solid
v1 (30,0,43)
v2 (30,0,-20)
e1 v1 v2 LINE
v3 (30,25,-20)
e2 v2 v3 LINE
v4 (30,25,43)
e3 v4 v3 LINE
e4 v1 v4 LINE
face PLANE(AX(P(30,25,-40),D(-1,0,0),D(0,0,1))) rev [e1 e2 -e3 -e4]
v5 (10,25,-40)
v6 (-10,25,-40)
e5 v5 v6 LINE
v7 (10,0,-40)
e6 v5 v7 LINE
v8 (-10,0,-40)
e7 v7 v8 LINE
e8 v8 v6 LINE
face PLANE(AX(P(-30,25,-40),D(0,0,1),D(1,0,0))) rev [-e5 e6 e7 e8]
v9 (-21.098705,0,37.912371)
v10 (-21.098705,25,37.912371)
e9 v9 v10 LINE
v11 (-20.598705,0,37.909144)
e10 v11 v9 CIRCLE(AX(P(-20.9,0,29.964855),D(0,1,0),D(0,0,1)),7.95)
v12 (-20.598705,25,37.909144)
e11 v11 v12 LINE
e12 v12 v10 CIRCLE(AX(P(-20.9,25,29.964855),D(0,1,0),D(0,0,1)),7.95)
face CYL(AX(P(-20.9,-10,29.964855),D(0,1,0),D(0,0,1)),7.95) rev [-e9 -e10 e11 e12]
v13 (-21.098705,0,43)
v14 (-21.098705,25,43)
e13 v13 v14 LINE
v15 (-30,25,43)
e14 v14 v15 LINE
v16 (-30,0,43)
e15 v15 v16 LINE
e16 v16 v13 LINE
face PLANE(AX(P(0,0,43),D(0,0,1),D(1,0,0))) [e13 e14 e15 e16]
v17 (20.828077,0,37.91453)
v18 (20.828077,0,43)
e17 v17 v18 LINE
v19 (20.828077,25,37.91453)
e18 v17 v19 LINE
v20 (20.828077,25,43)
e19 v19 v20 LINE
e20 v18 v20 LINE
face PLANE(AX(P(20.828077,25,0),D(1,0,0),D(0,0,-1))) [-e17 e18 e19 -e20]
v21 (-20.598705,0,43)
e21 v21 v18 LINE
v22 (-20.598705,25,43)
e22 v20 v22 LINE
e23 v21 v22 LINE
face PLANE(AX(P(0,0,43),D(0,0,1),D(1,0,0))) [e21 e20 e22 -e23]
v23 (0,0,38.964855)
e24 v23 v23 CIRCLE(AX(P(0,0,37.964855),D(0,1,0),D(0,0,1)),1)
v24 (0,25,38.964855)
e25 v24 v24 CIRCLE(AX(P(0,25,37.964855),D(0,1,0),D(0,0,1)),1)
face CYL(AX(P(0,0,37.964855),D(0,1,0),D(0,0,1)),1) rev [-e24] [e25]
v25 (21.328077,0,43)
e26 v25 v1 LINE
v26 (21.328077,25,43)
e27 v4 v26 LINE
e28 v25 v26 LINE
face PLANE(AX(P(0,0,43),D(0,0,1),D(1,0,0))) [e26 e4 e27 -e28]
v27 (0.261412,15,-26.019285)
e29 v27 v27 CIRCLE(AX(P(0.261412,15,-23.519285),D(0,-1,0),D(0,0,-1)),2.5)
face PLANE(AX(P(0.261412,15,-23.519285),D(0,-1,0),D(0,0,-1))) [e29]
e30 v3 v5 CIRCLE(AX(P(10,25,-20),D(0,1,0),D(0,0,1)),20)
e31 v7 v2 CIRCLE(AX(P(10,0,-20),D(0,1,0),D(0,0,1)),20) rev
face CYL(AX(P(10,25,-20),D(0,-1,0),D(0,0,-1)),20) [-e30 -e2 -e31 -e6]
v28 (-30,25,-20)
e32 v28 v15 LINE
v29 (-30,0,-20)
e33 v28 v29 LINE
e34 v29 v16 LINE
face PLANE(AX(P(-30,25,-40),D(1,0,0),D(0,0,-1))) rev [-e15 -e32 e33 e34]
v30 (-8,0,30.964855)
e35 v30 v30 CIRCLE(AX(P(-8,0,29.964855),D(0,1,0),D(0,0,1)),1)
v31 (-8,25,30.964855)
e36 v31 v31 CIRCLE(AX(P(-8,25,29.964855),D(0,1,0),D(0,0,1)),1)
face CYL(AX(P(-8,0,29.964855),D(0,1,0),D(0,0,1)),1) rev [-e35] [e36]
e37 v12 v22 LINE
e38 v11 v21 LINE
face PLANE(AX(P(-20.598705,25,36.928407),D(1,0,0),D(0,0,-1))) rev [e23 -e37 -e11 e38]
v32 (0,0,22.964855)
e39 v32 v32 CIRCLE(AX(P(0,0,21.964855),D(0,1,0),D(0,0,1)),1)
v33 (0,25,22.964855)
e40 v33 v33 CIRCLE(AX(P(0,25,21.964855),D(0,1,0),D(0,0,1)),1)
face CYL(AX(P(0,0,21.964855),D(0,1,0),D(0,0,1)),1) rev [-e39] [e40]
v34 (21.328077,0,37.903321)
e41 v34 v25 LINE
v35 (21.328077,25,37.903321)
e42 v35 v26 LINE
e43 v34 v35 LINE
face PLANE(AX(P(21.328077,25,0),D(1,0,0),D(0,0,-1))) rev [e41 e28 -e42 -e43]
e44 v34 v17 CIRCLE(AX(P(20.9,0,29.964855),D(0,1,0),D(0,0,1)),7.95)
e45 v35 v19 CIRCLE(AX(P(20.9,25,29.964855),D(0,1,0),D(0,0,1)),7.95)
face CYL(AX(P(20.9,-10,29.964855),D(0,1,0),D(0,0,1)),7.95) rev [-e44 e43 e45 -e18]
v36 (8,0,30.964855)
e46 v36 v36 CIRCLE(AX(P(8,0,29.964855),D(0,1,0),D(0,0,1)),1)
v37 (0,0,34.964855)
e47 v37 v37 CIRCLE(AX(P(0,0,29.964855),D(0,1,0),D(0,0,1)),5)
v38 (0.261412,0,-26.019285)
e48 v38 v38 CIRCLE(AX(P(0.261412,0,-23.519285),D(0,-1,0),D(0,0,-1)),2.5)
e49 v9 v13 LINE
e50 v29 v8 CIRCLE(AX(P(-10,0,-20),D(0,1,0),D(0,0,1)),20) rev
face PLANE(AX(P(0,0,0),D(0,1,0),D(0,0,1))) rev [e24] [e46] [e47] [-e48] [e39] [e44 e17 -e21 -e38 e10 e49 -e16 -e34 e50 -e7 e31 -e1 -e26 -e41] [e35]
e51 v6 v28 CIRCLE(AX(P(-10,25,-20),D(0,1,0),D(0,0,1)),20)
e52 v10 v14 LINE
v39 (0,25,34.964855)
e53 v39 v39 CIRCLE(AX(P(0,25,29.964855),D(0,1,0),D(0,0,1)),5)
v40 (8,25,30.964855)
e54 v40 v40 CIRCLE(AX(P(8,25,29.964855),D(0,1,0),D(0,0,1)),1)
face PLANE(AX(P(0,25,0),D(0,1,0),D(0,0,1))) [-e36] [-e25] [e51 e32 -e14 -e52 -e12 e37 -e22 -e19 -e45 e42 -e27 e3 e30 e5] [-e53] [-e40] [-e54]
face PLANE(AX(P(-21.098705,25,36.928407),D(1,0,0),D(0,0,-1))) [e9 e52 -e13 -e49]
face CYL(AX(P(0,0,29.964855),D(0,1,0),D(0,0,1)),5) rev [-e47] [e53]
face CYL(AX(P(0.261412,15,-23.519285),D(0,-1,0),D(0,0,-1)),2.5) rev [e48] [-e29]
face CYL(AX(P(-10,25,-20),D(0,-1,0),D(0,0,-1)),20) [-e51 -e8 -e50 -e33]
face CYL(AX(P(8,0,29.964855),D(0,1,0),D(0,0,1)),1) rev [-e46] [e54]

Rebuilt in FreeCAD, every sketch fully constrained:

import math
import FreeCAD as App
import Part
import Sketcher
from FreeCAD import Vector


def edges_at(feature, points):
    """Names of the edges that pass closest to the given points."""
    edges = feature.Shape.Edges
    near = lambda p: min(range(len(edges)), key=lambda i: edges[i].distToShape(Part.Vertex(*p))[0])
    return sorted({f"Edge{near(p) + 1}" for p in points})


def add_polygon(sketch, points):
    """Adds a closed chain of lines whose ends are joined by coincident constraints."""
    first, n = sketch.GeometryCount, len(points)
    for a, b in zip(points, points[1:] + points[:1]):
        sketch.addGeometry(Part.LineSegment(App.Vector(*a, 0), App.Vector(*b, 0)), False)
    for i in range(n):
        sketch.addConstraint(Sketcher.Constraint("Coincident", first + i, 2, first + (i + 1) % n, 1))

doc = App.newDocument("Part")
body = doc.addObject("PartDesign::Body", "Body")

# Sketch on XZ plane
sketch1 = body.newObject("Sketcher::SketchObject", "Sketch")
sketch1.AttachmentSupport = (doc.getObject("XZ_Plane"), [""])
sketch1.MapMode = "FlatFace"
add_polygon(sketch1, [(-30, -40), (-30, 40), (30, 40), (30, -40)])  # lines 0-3
sketch1.addConstraint([
    Sketcher.Constraint("Vertical", 0),
    Sketcher.Constraint("Horizontal", 1),
    Sketcher.Constraint("Vertical", 2),
    Sketcher.Constraint("Horizontal", 3),
    Sketcher.Constraint("Symmetric", 0, 2, 2, 2, -1, 1),
    Sketcher.Constraint("DistanceX", 1, 1, 1, 2, 60.0),
    Sketcher.Constraint("DistanceY", 0, 1, 0, 2, 80.0),
])
pad1 = body.newObject("PartDesign::Pad", "Pad")
pad1.Profile = sketch1
pad1.Length = 25
pad1.Reversed = True
doc.recompute()

fillet = body.newObject("PartDesign::Fillet", "Fillet")
fillet.Base = (pad1, edges_at(pad1, [(-30, 12.5, -40), (30, 12.5, -40)]))
fillet.Radius = 20

# Sketch on XZ plane
sketch2 = body.newObject("Sketcher::SketchObject", "Sketch001")
sketch2.AttachmentSupport = (doc.getObject("XZ_Plane"), [""])
sketch2.MapMode = "FlatFace"
sketch2.AttachmentOffset = App.Placement(Vector(0, 0, -25), App.Rotation())
sketch2.addGeometry([
    Part.Circle(Vector(-21, 30, 0), Vector(0, 0, 1), 8),
    Part.Circle(Vector(21, 30, 0), Vector(0, 0, 1), 8),
], False)
sketch2.addConstraint([
    Sketcher.Constraint("Equal", 0, 1),
    Sketcher.Constraint("Symmetric", 0, 3, 1, 3, -2),
    Sketcher.Constraint("Diameter", 0, 15.9),
    Sketcher.Constraint("DistanceX", 0, 3, -1, 1, 20.9),
    Sketcher.Constraint("DistanceY", -1, 1, 0, 3, 29.964855),
])
pocket1 = body.newObject("PartDesign::Pocket", "Pocket")
pocket1.Profile = sketch2
pocket1.Length = 35
pocket1.Reversed = True

# Sketch on XY plane
sketch3 = body.newObject("Sketcher::SketchObject", "Sketch002")
sketch3.AttachmentSupport = (doc.getObject("XY_Plane"), [""])
sketch3.MapMode = "FlatFace"
sketch3.AttachmentOffset = App.Placement(Vector(0, 0, 40), App.Rotation())
add_polygon(sketch3, [(-30, 25), (-30, 0), (30, 0), (30, 25)])  # lines 0-3
sketch3.addConstraint([
    Sketcher.Constraint("Vertical", 0),
    Sketcher.Constraint("Horizontal", 1),
    Sketcher.Constraint("Vertical", 2),
    Sketcher.Constraint("Horizontal", 3),
    Sketcher.Constraint("Symmetric", 0, 2, 1, 2, -1, 1),
    Sketcher.Constraint("DistanceX", 1, 1, 1, 2, 60.0),
    Sketcher.Constraint("DistanceY", 0, 2, 0, 1, 25.0),
])
pad2 = body.newObject("PartDesign::Pad", "Pad001")
pad2.Profile = sketch3
pad2.Length = 3

# Sketch on XZ plane
sketch4 = body.newObject("Sketcher::SketchObject", "Sketch003")
sketch4.AttachmentSupport = (doc.getObject("XZ_Plane"), [""])
sketch4.MapMode = "FlatFace"
sketch4.AttachmentOffset = App.Placement(Vector(0, 0, -25), App.Rotation())
sketch4.addGeometry([
    Part.Circle(Vector(0, 30, 0), Vector(0, 0, 1), 5),  # 0
    Part.Circle(Vector(0, 38, 0), Vector(0, 0, 1), 1),  # 1
    Part.Circle(Vector(8, 30, 0), Vector(0, 0, 1), 1),  # 2
    Part.Circle(Vector(0, 22, 0), Vector(0, 0, 1), 1),  # 3
    Part.Circle(Vector(-8, 30, 0), Vector(0, 0, 1), 1),  # 4
], False)
sketch4.addConstraint([
    Sketcher.Constraint("Equal", 1, 2),
    Sketcher.Constraint("Equal", 2, 3),
    Sketcher.Constraint("Equal", 3, 4),
    Sketcher.Constraint("Symmetric", 2, 3, 4, 3, -2),
    Sketcher.Constraint("PointOnObject", 0, 3, -2),
    Sketcher.Constraint("PointOnObject", 1, 3, -2),
    Sketcher.Constraint("PointOnObject", 3, 3, -2),
    Sketcher.Constraint("Horizontal", 0, 3, 2, 3),
    Sketcher.Constraint("Diameter", 0, 10.0),
    Sketcher.Constraint("Diameter", 1, 2.0),
    Sketcher.Constraint("DistanceX", -1, 1, 2, 3, 8.0),
    Sketcher.Constraint("DistanceY", 0, 3, 1, 3, 8.0),
    Sketcher.Constraint("DistanceY", 3, 3, 0, 3, 8.0),
    Sketcher.Constraint("DistanceY", -1, 1, 0, 3, 29.964855),
])
pocket2 = body.newObject("PartDesign::Pocket", "Pocket001")
pocket2.Profile = sketch4
pocket2.Type = "ThroughAll"
pocket2.Reversed = True

# Sketch on XZ plane
sketch5 = body.newObject("Sketcher::SketchObject", "Sketch004")
sketch5.AttachmentSupport = (doc.getObject("XZ_Plane"), [""])
sketch5.MapMode = "FlatFace"
sketch5.addGeometry(Part.Circle(Vector(0.3, -23.5, 0), Vector(0, 0, 1), 2.5), False)
sketch5.addConstraint([
    Sketcher.Constraint("Diameter", 0, 5.0),
    Sketcher.Constraint("DistanceX", -1, 1, 0, 3, 0.261412),
    Sketcher.Constraint("DistanceY", 0, 3, -1, 1, 23.519285),
])
pocket3 = body.newObject("PartDesign::Pocket", "Pocket002")
pocket3.Profile = sketch5
pocket3.Length = 15

# Sketch on XZ plane
sketch6 = body.newObject("Sketcher::SketchObject", "Sketch005")
sketch6.AttachmentSupport = (doc.getObject("XZ_Plane"), [""])
sketch6.MapMode = "FlatFace"
sketch6.addGeometry(Part.LineSegment(Vector(21.3, 37.9, 0), Vector(21.3, 44.5, 0)), False)  # 0
sketch6.addGeometry(Part.LineSegment(Vector(21.3, 44.5, 0), Vector(20.8, 44.5, 0)), False)  # 1
sketch6.addGeometry(Part.LineSegment(Vector(20.8, 44.5, 0), Vector(20.8, 37.9, 0)), False)  # 2
sketch6.addGeometry(Part.ArcOfCircle(Part.Circle(Vector(20.9, 30, 0), Vector(0, 0, 1), 8), math.radians(91), math.radians(360)), False)  # 3
sketch6.addGeometry(Part.ArcOfCircle(Part.Circle(Vector(20.9, 30, 0), Vector(0, 0, 1), 7.9), math.radians(0), math.radians(87)), False)  # 4
add_polygon(sketch6, [(-21.1, 44.5), (-21.1, 36.9), (-20.6, 36.9), (-20.6, 44.5)])  # lines 5-8
sketch6.addConstraint([
    Sketcher.Constraint("Coincident", 0, 2, 1, 1),
    Sketcher.Constraint("Coincident", 1, 2, 2, 1),
    Sketcher.Constraint("Coincident", 2, 2, 3, 1),
    Sketcher.Constraint("Tangent", 3, 2, 4, 1),
    Sketcher.Constraint("Coincident", 4, 2, 0, 1),
    Sketcher.Constraint("Vertical", 0),
    Sketcher.Constraint("Horizontal", 1),
    Sketcher.Constraint("Vertical", 2),
    Sketcher.Constraint("Vertical", 5),
    Sketcher.Constraint("Horizontal", 6),
    Sketcher.Constraint("Vertical", 7),
    Sketcher.Constraint("Horizontal", 8),
    Sketcher.Constraint("Equal", 3, 4),
    Sketcher.Constraint("Horizontal", 4, 3, 3, 2),
    Sketcher.Constraint("Horizontal", 1, 2, 7, 2),
    Sketcher.Constraint("Equal", 1, 6),
    Sketcher.Constraint("Radius", 3, 7.95),
    Sketcher.Constraint("DistanceX", 1, 2, 1, 1, 0.5),
    Sketcher.Constraint("DistanceX", -1, 1, 3, 3, 20.9),
    Sketcher.Constraint("DistanceY", 2, 2, 2, 1, 6.54444),
    Sketcher.Constraint("DistanceY", 5, 2, 5, 1, 7.530562),
    Sketcher.Constraint("DistanceY", 0, 1, 0, 2, 6.555648),
    Sketcher.Constraint("DistanceY", -1, 1, 0, 2, 44.458969),
    Sketcher.Constraint("DistanceX", 5, 2, -1, 1, 21.098705),
])
pocket4 = body.newObject("PartDesign::Pocket", "Pocket003")
pocket4.Profile = sketch6
pocket4.Type = "ThroughAll"

doc.recompute()
